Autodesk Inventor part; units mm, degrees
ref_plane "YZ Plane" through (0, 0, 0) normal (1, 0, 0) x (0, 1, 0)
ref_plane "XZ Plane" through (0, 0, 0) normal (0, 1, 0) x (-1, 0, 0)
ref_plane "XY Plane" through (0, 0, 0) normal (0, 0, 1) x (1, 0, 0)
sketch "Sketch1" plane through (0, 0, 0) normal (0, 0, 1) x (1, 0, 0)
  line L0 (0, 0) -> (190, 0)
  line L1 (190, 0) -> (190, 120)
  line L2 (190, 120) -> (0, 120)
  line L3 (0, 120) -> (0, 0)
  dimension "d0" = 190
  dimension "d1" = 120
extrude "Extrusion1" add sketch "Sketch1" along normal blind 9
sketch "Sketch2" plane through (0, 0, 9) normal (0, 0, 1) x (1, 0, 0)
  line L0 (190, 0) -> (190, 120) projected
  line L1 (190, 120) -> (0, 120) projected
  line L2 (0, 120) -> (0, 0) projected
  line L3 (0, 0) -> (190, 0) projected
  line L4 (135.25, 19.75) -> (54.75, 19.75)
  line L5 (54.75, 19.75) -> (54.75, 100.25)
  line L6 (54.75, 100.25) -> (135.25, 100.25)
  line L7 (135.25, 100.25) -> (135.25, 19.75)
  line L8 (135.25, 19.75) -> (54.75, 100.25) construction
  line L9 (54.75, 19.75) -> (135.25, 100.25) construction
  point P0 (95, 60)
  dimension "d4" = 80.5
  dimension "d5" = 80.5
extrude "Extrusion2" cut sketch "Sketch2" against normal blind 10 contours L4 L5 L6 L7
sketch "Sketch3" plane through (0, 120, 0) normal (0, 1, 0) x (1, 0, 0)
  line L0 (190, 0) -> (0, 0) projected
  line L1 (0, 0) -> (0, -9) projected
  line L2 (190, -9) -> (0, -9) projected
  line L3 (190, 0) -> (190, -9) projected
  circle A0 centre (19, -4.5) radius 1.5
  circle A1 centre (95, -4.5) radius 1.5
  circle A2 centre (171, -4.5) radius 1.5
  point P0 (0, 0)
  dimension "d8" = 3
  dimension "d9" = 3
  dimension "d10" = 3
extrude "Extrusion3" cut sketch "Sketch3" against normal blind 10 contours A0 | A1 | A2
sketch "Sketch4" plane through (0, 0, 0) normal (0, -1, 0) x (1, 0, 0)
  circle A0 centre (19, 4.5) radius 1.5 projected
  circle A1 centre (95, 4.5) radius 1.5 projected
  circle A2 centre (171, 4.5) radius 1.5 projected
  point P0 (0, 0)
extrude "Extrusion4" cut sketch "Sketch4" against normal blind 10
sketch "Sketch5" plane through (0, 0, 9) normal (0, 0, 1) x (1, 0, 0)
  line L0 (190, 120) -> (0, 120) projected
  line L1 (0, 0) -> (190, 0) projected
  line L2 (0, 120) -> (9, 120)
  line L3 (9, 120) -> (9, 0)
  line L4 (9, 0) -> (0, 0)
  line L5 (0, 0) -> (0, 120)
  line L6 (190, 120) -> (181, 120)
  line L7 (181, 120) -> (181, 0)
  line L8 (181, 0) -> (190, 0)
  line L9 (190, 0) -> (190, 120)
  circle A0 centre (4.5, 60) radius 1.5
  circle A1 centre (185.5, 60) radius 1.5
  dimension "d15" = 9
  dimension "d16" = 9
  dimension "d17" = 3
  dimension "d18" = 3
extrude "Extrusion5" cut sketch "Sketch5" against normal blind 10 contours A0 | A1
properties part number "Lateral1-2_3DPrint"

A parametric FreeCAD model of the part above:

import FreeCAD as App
import Part
import Sketcher


def add_polygon(sketch, points):
    """Adds a closed chain of lines whose ends are joined by coincident constraints."""
    first, n = sketch.GeometryCount, len(points)
    for a, b in zip(points, points[1:] + points[:1]):
        sketch.addGeometry(Part.LineSegment(App.Vector(*a, 0), App.Vector(*b, 0)), False)
    for i in range(n):
        sketch.addConstraint(Sketcher.Constraint("Coincident", first + i, 2, first + (i + 1) % n, 1))

doc = App.newDocument("Part")
body = doc.addObject("PartDesign::Body", "Body")

# Sketch on XY plane
sketch1 = body.newObject("Sketcher::SketchObject", "Sketch")
sketch1.AttachmentSupport = (doc.getObject("XY_Plane"), [""])
sketch1.MapMode = "FlatFace"
add_polygon(sketch1, [(0, 120), (0, 0), (190, 0), (190, 120)])  # lines 0-3
sketch1.addConstraint([
    Sketcher.Constraint("Vertical", 0),
    Sketcher.Constraint("Horizontal", 1),
    Sketcher.Constraint("Vertical", 2),
    Sketcher.Constraint("Horizontal", 3),
    Sketcher.Constraint("Coincident", 0, 2, -1, 1),
    Sketcher.Constraint("DistanceX", 1, 1, 1, 2, 190.0),
    Sketcher.Constraint("DistanceY", 0, 2, 0, 1, 120.0),
])
pad1 = body.newObject("PartDesign::Pad", "Pad")
pad1.Profile = sketch1
pad1.Length = 9

# Sketch on XY plane
sketch2 = body.newObject("Sketcher::SketchObject", "Sketch001")
sketch2.AttachmentSupport = (doc.getObject("XY_Plane"), [""])
sketch2.MapMode = "FlatFace"
sketch2.AttachmentOffset = App.Placement(App.Vector(0, 0, 9), App.Rotation())
add_polygon(sketch2, [(55, 20), (135, 20), (135, 100), (55, 100)])  # lines 0-3
sketch2.addConstraint([
    Sketcher.Constraint("Horizontal", 0),
    Sketcher.Constraint("Vertical", 1),
    Sketcher.Constraint("Horizontal", 2),
    Sketcher.Constraint("Vertical", 3),
    Sketcher.Constraint("Equal", 2, 1),
    Sketcher.Constraint("DistanceX", 0, 1, 0, 2, 80.5),
    Sketcher.Constraint("DistanceX", -1, 1, 0, 2, 135.25),
    Sketcher.Constraint("DistanceY", -1, 1, 0, 2, 19.75),
])
pocket1 = body.newObject("PartDesign::Pocket", "Pocket")
pocket1.Profile = sketch2
pocket1.Length = 10

# Sketch on XZ plane
sketch3 = body.newObject("Sketcher::SketchObject", "Sketch002")
sketch3.AttachmentSupport = (doc.getObject("XZ_Plane"), [""])
sketch3.MapMode = "FlatFace"
sketch3.AttachmentOffset = App.Placement(App.Vector(0, 0, -120), App.Rotation())
sketch3.addGeometry([
    Part.Circle(App.Vector(19, 4.5, 0), App.Vector(0, 0, 1), 1.5),
    Part.Circle(App.Vector(95, 4.5, 0), App.Vector(0, 0, 1), 1.5),
    Part.Circle(App.Vector(171, 4.5, 0), App.Vector(0, 0, 1), 1.5),
], False)
sketch3.addConstraint([
    Sketcher.Constraint("Equal", 0, 1),
    Sketcher.Constraint("Equal", 1, 2),
    Sketcher.Constraint("Horizontal", 0, 3, 1, 3),
    Sketcher.Constraint("Horizontal", 1, 3, 2, 3),
    Sketcher.Constraint("Diameter", 0, 3.0),
    Sketcher.Constraint("DistanceX", -1, 1, 0, 3, 19.0),
    Sketcher.Constraint("DistanceX", -1, 1, 1, 3, 95.0),
    Sketcher.Constraint("DistanceX", -1, 1, 2, 3, 171.0),
    Sketcher.Constraint("DistanceY", -1, 1, 0, 3, 4.5),
])
pocket2 = body.newObject("PartDesign::Pocket", "Pocket001")
pocket2.Profile = sketch3
pocket2.Length = 10
pocket2.Reversed = True

# Sketch on XZ plane
sketch4 = body.newObject("Sketcher::SketchObject", "Sketch003")
sketch4.AttachmentSupport = (doc.getObject("XZ_Plane"), [""])
sketch4.MapMode = "FlatFace"
sketch4.addGeometry([
    Part.Circle(App.Vector(19, 4.5, 0), App.Vector(0, 0, 1), 1.5),
    Part.Circle(App.Vector(95, 4.5, 0), App.Vector(0, 0, 1), 1.5),
    Part.Circle(App.Vector(171, 4.5, 0), App.Vector(0, 0, 1), 1.5),
], False)
sketch4.addConstraint([
    Sketcher.Constraint("Equal", 0, 1),
    Sketcher.Constraint("Equal", 1, 2),
    Sketcher.Constraint("Horizontal", 0, 3, 1, 3),
    Sketcher.Constraint("Horizontal", 1, 3, 2, 3),
    Sketcher.Constraint("Diameter", 0, 3.0),
    Sketcher.Constraint("DistanceX", -1, 1, 0, 3, 19.0),
    Sketcher.Constraint("DistanceX", -1, 1, 1, 3, 95.0),
    Sketcher.Constraint("DistanceX", -1, 1, 2, 3, 171.0),
    Sketcher.Constraint("DistanceY", -1, 1, 0, 3, 4.5),
])
pocket3 = body.newObject("PartDesign::Pocket", "Pocket002")
pocket3.Profile = sketch4
pocket3.Length = 10

# Sketch on XY plane
sketch5 = body.newObject("Sketcher::SketchObject", "Sketch004")
sketch5.AttachmentSupport = (doc.getObject("XY_Plane"), [""])
sketch5.MapMode = "FlatFace"
sketch5.AttachmentOffset = App.Placement(App.Vector(0, 0, 9), App.Rotation())
sketch5.addGeometry([
    Part.Circle(App.Vector(4.5, 60, 0), App.Vector(0, 0, 1), 1.5),
    Part.Circle(App.Vector(185.5, 60, 0), App.Vector(0, 0, 1), 1.5),
], False)
sketch5.addConstraint([
    Sketcher.Constraint("Equal", 0, 1),
    Sketcher.Constraint("Horizontal", 0, 3, 1, 3),
    Sketcher.Constraint("Diameter", 0, 3.0),
    Sketcher.Constraint("DistanceY", -1, 1, 0, 3, 60.0),
    Sketcher.Constraint("DistanceX", 0, 3, 1, 3, 181.0),
    Sketcher.Constraint("DistanceX", -1, 1, 0, 3, 4.5),
])
pocket4 = body.newObject("PartDesign::Pocket", "Pocket003")
pocket4.Profile = sketch5
pocket4.Length = 10

doc.recompute()
